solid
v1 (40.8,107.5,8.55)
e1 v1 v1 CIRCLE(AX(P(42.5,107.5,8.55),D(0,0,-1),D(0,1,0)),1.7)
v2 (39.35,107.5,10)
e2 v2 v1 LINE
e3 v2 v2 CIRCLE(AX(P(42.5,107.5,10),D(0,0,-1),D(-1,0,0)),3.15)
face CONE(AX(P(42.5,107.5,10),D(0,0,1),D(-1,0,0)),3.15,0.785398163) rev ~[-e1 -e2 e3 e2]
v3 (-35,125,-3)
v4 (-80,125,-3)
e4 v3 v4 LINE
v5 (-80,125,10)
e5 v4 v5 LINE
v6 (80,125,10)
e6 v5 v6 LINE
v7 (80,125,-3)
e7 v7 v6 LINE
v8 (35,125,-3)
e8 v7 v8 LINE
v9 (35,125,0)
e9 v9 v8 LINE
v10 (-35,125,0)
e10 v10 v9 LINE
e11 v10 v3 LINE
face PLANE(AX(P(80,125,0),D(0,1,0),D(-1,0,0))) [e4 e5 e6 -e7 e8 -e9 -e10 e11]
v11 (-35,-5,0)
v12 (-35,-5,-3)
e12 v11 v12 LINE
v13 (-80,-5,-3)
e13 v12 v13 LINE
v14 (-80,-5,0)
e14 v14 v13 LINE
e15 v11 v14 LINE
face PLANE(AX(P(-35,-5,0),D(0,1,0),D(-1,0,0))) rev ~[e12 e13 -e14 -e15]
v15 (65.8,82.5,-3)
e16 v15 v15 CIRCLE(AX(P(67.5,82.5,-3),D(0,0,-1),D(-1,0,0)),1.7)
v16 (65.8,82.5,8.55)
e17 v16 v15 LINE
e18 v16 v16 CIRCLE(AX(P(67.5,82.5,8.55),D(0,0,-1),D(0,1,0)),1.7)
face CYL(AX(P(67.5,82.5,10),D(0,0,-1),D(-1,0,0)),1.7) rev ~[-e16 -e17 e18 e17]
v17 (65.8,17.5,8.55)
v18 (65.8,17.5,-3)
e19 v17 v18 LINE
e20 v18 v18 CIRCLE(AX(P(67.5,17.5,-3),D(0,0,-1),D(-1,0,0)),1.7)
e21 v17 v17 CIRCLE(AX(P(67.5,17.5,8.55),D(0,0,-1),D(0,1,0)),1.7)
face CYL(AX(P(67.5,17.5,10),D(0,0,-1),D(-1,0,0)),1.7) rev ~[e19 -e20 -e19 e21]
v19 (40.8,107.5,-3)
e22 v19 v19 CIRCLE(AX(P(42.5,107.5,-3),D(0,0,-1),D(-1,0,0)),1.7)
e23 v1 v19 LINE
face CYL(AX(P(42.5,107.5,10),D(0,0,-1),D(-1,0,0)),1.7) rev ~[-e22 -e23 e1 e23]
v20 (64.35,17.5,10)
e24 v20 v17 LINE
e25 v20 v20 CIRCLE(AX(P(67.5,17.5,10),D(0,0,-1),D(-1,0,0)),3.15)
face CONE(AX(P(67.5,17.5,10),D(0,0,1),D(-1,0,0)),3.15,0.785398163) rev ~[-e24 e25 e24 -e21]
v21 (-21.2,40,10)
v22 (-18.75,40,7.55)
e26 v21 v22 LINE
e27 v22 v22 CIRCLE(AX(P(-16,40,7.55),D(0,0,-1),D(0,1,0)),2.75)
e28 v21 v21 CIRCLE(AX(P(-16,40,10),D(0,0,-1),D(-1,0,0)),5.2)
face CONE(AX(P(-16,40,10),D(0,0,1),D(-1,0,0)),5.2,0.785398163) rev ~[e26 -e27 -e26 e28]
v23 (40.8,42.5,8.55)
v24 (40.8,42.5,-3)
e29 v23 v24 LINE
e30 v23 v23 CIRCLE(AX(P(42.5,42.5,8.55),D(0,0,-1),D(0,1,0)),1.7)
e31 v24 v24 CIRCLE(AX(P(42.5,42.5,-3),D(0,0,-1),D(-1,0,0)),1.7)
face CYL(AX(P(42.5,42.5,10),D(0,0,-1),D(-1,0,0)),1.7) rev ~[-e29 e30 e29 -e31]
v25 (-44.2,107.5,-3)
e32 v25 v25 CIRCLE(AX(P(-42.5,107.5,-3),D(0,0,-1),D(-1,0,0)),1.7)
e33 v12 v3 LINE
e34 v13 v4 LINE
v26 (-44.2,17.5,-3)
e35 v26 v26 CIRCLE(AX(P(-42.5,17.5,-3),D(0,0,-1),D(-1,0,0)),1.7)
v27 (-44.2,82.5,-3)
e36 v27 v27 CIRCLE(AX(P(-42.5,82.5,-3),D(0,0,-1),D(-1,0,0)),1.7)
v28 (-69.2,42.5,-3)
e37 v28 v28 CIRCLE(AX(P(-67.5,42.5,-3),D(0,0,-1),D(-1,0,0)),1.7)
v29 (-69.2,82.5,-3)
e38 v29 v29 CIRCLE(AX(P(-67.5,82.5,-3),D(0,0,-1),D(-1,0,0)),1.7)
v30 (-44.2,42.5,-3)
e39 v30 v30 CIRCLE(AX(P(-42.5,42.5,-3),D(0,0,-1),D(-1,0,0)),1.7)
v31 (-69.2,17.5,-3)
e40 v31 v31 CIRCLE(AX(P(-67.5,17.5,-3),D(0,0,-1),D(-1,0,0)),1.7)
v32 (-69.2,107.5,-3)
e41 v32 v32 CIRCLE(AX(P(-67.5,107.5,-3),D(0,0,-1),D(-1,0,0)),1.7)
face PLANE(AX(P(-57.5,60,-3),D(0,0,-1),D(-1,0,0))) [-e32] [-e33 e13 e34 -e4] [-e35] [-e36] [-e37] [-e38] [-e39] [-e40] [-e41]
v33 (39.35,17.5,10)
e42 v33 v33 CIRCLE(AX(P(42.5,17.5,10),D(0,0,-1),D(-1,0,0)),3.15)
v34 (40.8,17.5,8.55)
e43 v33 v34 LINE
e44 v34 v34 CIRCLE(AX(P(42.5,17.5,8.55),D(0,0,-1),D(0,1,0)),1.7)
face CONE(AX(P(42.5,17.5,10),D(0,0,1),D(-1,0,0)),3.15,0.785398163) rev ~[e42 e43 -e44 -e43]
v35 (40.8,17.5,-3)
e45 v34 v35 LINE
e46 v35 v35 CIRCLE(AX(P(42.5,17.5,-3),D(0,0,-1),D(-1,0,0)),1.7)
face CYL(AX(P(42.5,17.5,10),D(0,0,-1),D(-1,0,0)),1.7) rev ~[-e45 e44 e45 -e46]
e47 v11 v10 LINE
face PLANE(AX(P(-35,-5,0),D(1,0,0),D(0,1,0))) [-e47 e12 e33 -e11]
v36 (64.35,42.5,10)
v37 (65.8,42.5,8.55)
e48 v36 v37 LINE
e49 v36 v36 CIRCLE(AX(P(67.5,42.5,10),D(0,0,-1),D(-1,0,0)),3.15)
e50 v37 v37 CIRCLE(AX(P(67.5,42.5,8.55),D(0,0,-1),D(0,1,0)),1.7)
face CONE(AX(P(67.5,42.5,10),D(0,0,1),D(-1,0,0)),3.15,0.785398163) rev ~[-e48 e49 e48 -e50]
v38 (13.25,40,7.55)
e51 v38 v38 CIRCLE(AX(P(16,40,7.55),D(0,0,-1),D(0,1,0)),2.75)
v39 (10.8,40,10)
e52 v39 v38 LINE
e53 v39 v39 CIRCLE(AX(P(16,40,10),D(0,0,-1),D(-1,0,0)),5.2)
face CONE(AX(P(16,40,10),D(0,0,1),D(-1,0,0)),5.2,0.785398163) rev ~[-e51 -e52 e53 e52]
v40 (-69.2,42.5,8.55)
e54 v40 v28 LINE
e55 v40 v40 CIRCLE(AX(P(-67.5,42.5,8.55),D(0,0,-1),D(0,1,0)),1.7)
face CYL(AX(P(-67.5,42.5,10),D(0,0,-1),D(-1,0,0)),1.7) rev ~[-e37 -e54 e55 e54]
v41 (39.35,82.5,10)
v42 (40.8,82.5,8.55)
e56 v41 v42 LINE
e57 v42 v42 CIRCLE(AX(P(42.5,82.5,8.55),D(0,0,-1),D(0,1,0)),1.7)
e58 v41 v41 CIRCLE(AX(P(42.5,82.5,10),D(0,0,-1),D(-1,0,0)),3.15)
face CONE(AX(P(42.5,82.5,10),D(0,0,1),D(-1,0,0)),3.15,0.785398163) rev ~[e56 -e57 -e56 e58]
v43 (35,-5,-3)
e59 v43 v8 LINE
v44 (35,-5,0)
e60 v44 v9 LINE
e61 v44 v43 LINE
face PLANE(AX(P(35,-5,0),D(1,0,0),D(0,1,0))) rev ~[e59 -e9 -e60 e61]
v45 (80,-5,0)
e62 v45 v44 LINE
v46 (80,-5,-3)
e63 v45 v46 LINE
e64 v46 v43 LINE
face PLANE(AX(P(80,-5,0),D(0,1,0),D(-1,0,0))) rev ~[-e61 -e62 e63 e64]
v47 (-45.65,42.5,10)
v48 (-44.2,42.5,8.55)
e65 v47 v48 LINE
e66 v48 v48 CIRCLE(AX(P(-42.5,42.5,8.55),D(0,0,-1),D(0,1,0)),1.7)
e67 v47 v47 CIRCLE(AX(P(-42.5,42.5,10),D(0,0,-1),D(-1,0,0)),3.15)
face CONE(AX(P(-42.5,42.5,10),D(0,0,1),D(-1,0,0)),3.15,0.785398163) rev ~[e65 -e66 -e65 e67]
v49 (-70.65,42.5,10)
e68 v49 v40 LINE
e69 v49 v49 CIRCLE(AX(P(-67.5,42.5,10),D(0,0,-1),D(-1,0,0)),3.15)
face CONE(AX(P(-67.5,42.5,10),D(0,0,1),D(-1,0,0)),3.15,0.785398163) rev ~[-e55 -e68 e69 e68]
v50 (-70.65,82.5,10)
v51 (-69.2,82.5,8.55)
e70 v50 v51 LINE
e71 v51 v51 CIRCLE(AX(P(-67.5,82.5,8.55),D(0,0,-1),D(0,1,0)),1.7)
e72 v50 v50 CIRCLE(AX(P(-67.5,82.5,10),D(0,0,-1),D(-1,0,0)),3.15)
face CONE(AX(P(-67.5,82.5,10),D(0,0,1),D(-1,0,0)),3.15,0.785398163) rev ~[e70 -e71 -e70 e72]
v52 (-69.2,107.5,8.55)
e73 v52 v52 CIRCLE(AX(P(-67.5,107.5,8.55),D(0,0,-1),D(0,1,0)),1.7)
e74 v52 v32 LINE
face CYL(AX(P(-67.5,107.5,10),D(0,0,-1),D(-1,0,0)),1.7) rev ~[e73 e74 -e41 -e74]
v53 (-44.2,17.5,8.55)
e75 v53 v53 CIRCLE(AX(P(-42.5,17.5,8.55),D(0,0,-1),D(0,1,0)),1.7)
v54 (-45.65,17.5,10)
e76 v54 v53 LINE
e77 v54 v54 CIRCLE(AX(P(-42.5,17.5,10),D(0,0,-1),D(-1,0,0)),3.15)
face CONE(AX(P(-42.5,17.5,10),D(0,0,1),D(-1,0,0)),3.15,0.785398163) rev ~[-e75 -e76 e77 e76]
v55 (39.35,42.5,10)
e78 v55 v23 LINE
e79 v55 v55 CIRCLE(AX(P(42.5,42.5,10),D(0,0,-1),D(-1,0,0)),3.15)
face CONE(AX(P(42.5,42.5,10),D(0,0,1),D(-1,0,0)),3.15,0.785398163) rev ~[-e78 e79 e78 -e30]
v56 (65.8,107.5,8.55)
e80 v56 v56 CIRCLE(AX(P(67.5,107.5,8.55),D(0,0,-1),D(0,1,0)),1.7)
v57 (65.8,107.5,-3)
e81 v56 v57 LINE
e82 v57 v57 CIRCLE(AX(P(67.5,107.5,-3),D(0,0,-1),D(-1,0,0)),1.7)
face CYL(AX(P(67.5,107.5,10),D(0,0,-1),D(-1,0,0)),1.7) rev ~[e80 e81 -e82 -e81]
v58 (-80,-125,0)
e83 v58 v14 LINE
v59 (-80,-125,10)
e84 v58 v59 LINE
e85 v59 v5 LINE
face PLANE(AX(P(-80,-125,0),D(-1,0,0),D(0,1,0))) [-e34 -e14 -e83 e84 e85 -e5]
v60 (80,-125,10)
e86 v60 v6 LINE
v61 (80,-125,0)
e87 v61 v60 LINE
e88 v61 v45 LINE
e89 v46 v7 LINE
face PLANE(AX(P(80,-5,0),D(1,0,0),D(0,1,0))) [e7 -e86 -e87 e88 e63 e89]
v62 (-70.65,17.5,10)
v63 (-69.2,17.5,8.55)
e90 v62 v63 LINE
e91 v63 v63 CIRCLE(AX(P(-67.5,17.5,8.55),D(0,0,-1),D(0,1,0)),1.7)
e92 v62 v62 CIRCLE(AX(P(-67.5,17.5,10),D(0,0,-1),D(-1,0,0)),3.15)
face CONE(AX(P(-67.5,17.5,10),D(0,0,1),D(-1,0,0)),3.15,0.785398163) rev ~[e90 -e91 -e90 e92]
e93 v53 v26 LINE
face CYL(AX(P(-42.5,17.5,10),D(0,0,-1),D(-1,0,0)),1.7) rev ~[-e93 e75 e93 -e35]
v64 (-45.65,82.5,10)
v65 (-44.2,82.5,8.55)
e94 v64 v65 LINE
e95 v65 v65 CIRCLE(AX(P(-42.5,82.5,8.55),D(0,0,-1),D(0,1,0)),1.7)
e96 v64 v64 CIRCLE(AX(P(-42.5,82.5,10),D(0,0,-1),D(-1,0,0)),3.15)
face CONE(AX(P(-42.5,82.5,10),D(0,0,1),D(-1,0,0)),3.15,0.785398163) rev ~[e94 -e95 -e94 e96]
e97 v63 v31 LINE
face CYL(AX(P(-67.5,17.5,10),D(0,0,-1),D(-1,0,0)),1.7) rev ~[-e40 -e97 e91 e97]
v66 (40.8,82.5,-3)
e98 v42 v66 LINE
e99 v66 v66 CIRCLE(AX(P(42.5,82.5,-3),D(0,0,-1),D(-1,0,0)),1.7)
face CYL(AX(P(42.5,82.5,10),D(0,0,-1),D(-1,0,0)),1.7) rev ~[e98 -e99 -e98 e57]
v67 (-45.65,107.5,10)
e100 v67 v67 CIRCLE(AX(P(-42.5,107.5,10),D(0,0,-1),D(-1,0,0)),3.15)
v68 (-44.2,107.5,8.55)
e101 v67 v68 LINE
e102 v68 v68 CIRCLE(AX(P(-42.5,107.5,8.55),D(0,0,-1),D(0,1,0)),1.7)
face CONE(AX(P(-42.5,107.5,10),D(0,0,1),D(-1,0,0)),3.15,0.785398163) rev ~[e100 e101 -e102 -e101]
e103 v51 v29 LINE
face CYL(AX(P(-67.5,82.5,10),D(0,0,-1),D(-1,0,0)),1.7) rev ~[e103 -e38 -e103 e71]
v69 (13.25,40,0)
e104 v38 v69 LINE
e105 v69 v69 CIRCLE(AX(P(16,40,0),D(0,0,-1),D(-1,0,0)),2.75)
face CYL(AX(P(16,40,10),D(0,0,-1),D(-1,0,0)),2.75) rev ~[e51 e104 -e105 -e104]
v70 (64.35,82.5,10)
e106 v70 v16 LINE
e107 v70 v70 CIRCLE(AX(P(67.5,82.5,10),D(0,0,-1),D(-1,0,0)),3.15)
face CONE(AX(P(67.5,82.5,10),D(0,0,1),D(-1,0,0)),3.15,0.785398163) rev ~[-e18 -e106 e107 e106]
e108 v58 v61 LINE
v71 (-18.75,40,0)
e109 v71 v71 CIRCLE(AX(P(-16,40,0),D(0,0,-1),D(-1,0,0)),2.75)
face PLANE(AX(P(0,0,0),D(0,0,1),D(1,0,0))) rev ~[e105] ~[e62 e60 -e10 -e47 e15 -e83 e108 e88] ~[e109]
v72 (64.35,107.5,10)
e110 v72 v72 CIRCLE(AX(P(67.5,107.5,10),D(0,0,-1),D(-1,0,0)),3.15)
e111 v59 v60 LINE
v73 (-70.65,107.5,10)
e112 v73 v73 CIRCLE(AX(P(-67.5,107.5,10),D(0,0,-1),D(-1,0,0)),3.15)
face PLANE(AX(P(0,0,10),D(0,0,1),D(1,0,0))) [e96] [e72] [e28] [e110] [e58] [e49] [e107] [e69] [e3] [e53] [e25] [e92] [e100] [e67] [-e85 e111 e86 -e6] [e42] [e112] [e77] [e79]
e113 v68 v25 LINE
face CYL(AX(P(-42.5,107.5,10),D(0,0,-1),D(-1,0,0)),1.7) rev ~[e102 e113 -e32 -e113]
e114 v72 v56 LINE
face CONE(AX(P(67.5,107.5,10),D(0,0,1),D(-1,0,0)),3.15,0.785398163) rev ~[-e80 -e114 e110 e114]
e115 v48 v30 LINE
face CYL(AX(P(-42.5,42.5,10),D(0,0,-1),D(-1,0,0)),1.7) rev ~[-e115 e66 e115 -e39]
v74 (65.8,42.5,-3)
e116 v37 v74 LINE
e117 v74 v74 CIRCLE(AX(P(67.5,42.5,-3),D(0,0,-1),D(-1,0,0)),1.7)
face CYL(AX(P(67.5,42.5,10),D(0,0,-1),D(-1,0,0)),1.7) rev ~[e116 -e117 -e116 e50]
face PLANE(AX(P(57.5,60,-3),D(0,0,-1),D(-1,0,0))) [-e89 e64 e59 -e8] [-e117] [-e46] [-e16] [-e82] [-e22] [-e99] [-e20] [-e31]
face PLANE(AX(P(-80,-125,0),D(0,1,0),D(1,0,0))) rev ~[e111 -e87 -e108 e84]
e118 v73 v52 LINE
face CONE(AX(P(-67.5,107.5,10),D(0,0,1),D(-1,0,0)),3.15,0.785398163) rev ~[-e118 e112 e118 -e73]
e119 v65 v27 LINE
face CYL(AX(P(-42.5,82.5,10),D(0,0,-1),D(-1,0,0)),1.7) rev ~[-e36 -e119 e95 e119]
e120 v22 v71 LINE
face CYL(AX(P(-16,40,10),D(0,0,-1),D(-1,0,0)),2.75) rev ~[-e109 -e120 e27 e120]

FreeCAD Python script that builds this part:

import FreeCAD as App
import Part
import Sketcher


def add_polygon(sketch, points):
    """Adds a closed chain of lines whose ends are joined by coincident constraints."""
    first, n = sketch.GeometryCount, len(points)
    for a, b in zip(points, points[1:] + points[:1]):
        sketch.addGeometry(Part.LineSegment(App.Vector(*a, 0), App.Vector(*b, 0)), False)
    for i in range(n):
        sketch.addConstraint(Sketcher.Constraint("Coincident", first + i, 2, first + (i + 1) % n, 1))

doc = App.newDocument("Part")
body = doc.addObject("PartDesign::Body", "Body")

# Sketch on XY plane
sketch1 = body.newObject("Sketcher::SketchObject", "Sketch")
sketch1.AttachmentSupport = (doc.getObject("XY_Plane"), [""])
sketch1.MapMode = "FlatFace"
add_polygon(sketch1, [(-80, 125), (-80, -125), (80, -125), (80, 125)])  # lines 0-3
sketch1.addConstraint(Sketcher.Constraint("Vertical", 0))
sketch1.addConstraint(Sketcher.Constraint("Horizontal", 1))
sketch1.addConstraint(Sketcher.Constraint("Vertical", 2))
sketch1.addConstraint(Sketcher.Constraint("Horizontal", 3))
sketch1.addConstraint(Sketcher.Constraint("Symmetric", 0, 2, 2, 2, -1, 1))
sketch1.addConstraint(Sketcher.Constraint("DistanceX", 1, 1, 1, 2, 160.0))
sketch1.addConstraint(Sketcher.Constraint("DistanceY", 0, 2, 0, 1, 250.0))
pad1 = body.newObject("PartDesign::Pad", "Pad")
pad1.Profile = sketch1
pad1.Length = 10

# Sketch on XY plane
sketch2 = body.newObject("Sketcher::SketchObject", "Sketch001")
sketch2.AttachmentSupport = (doc.getObject("XY_Plane"), [""])
sketch2.MapMode = "FlatFace"
add_polygon(sketch2, [(80, 125), (80, -5), (35, -5), (35, 125)])  # lines 0-3
add_polygon(sketch2, [(-35, 125), (-35, -5), (-80, -5), (-80, 125)])  # lines 4-7
sketch2.addConstraint(Sketcher.Constraint("Vertical", 0))
sketch2.addConstraint(Sketcher.Constraint("Horizontal", 1))
sketch2.addConstraint(Sketcher.Constraint("Vertical", 2))
sketch2.addConstraint(Sketcher.Constraint("Horizontal", 3))
sketch2.addConstraint(Sketcher.Constraint("Vertical", 4))
sketch2.addConstraint(Sketcher.Constraint("Horizontal", 5))
sketch2.addConstraint(Sketcher.Constraint("Vertical", 6))
sketch2.addConstraint(Sketcher.Constraint("Horizontal", 7))
sketch2.addConstraint(Sketcher.Constraint("Symmetric", 1, 2, 4, 2, -2))
sketch2.addConstraint(Sketcher.Constraint("Symmetric", 3, 2, 6, 2, -2))
sketch2.addConstraint(Sketcher.Constraint("DistanceX", 1, 2, 1, 1, 45.0))
sketch2.addConstraint(Sketcher.Constraint("DistanceY", 0, 2, 0, 1, 130.0))
sketch2.addConstraint(Sketcher.Constraint("DistanceX", -1, 1, 0, 2, 80.0))
sketch2.addConstraint(Sketcher.Constraint("DistanceY", 0, 2, -1, 1, 5.0))
pad2 = body.newObject("PartDesign::Pad", "Pad001")
pad2.Profile = sketch2
pad2.Length = 3
pad2.Reversed = True

# Sketch on XY plane
sketch3 = body.newObject("Sketcher::SketchObject", "Sketch002")
sketch3.AttachmentSupport = (doc.getObject("XY_Plane"), [""])
sketch3.MapMode = "FlatFace"
sketch3.AttachmentOffset = App.Placement(App.Vector(0, 0, 10), App.Rotation())
sketch3.addGeometry(Part.Circle(App.Vector(-67.5, 107.5, 0), App.Vector(0, 0, 1), 1.7), False)
sketch3.addGeometry(Part.Circle(App.Vector(-42.5, 107.5, 0), App.Vector(0, 0, 1), 1.7), False)
sketch3.addGeometry(Part.Circle(App.Vector(-42.5, 82.5, 0), App.Vector(0, 0, 1), 1.7), False)
sketch3.addGeometry(Part.Circle(App.Vector(-67.5, 82.5, 0), App.Vector(0, 0, 1), 1.7), False)
sketch3.addGeometry(Part.Circle(App.Vector(42.5, 107.5, 0), App.Vector(0, 0, 1), 1.7), False)
sketch3.addGeometry(Part.Circle(App.Vector(67.5, 107.5, 0), App.Vector(0, 0, 1), 1.7), False)
sketch3.addGeometry(Part.Circle(App.Vector(67.5, 82.5, 0), App.Vector(0, 0, 1), 1.7), False)
sketch3.addGeometry(Part.Circle(App.Vector(42.5, 82.5, 0), App.Vector(0, 0, 1), 1.7), False)
sketch3.addGeometry(Part.Circle(App.Vector(-67.5, 42.5, 0), App.Vector(0, 0, 1), 1.7), False)
sketch3.addGeometry(Part.Circle(App.Vector(-42.5, 42.5, 0), App.Vector(0, 0, 1), 1.7), False)
sketch3.addGeometry(Part.Circle(App.Vector(-42.5, 17.5, 0), App.Vector(0, 0, 1), 1.7), False)
sketch3.addGeometry(Part.Circle(App.Vector(-67.5, 17.5, 0), App.Vector(0, 0, 1), 1.7), False)
sketch3.addGeometry(Part.Circle(App.Vector(42.5, 42.5, 0), App.Vector(0, 0, 1), 1.7), False)
sketch3.addGeometry(Part.Circle(App.Vector(67.5, 42.5, 0), App.Vector(0, 0, 1), 1.7), False)
sketch3.addGeometry(Part.Circle(App.Vector(67.5, 17.5, 0), App.Vector(0, 0, 1), 1.7), False)
sketch3.addGeometry(Part.Circle(App.Vector(42.5, 17.5, 0), App.Vector(0, 0, 1), 1.7), False)
sketch3.addConstraint(Sketcher.Constraint("Equal", 0, 1))
sketch3.addConstraint(Sketcher.Constraint("Equal", 1, 2))
sketch3.addConstraint(Sketcher.Constraint("Equal", 2, 3))
sketch3.addConstraint(Sketcher.Constraint("Equal", 3, 4))
sketch3.addConstraint(Sketcher.Constraint("Equal", 4, 5))
sketch3.addConstraint(Sketcher.Constraint("Equal", 5, 6))
sketch3.addConstraint(Sketcher.Constraint("Equal", 6, 7))
sketch3.addConstraint(Sketcher.Constraint("Equal", 7, 8))
sketch3.addConstraint(Sketcher.Constraint("Equal", 8, 9))
sketch3.addConstraint(Sketcher.Constraint("Equal", 9, 10))
sketch3.addConstraint(Sketcher.Constraint("Equal", 10, 11))
sketch3.addConstraint(Sketcher.Constraint("Equal", 11, 12))
sketch3.addConstraint(Sketcher.Constraint("Equal", 12, 13))
sketch3.addConstraint(Sketcher.Constraint("Equal", 13, 14))
sketch3.addConstraint(Sketcher.Constraint("Equal", 14, 15))
sketch3.addConstraint(Sketcher.Constraint("Symmetric", 1, 3, 4, 3, -2))
sketch3.addConstraint(Sketcher.Constraint("Symmetric", 0, 3, 5, 3, -2))
sketch3.addConstraint(Sketcher.Constraint("Symmetric", 3, 3, 6, 3, -2))
sketch3.addConstraint(Sketcher.Constraint("Symmetric", 2, 3, 7, 3, -2))
sketch3.addConstraint(Sketcher.Constraint("Symmetric", 9, 3, 12, 3, -2))
sketch3.addConstraint(Sketcher.Constraint("Symmetric", 8, 3, 13, 3, -2))
sketch3.addConstraint(Sketcher.Constraint("Symmetric", 11, 3, 14, 3, -2))
sketch3.addConstraint(Sketcher.Constraint("Symmetric", 10, 3, 15, 3, -2))
sketch3.addConstraint(Sketcher.Constraint("Horizontal", 0, 3, 1, 3))
sketch3.addConstraint(Sketcher.Constraint("Horizontal", 2, 3, 3, 3))
sketch3.addConstraint(Sketcher.Constraint("Horizontal", 8, 3, 9, 3))
sketch3.addConstraint(Sketcher.Constraint("Horizontal", 10, 3, 11, 3))
sketch3.addConstraint(Sketcher.Constraint("Vertical", 1, 3, 2, 3))
sketch3.addConstraint(Sketcher.Constraint("Vertical", 0, 3, 3, 3))
sketch3.addConstraint(Sketcher.Constraint("Vertical", 3, 3, 8, 3))
sketch3.addConstraint(Sketcher.Constraint("Vertical", 2, 3, 9, 3))
sketch3.addConstraint(Sketcher.Constraint("Vertical", 9, 3, 10, 3))
sketch3.addConstraint(Sketcher.Constraint("Vertical", 8, 3, 11, 3))
sketch3.addConstraint(Sketcher.Constraint("Diameter", 0, 3.4))
sketch3.addConstraint(Sketcher.Constraint("DistanceX", 0, 3, 1, 3, 25.0))
sketch3.addConstraint(Sketcher.Constraint("DistanceY", 2, 3, 1, 3, 25.0))
sketch3.addConstraint(Sketcher.Constraint("DistanceX", 1, 3, 4, 3, 85.0))
sketch3.addConstraint(Sketcher.Constraint("DistanceY", 8, 3, 3, 3, 40.0))
sketch3.addConstraint(Sketcher.Constraint("DistanceY", 10, 3, 9, 3, 25.0))
sketch3.addConstraint(Sketcher.Constraint("DistanceY", -1, 1, 0, 3, 107.5))
doc.recompute()
hole = body.newObject("PartDesign::Hole", "Hole")
hole.Profile = sketch3
hole.ThreadType = "None"
hole.Diameter = 3.4
hole.DepthType = "ThroughAll"
hole.HoleCutType = "Countersink"
hole.HoleCutDiameter = 6.3
hole.HoleCutCountersinkAngle = 90

# Sketch on XY plane
sketch4 = body.newObject("Sketcher::SketchObject", "Sketch003")
sketch4.AttachmentSupport = (doc.getObject("XY_Plane"), [""])
sketch4.MapMode = "FlatFace"
sketch4.AttachmentOffset = App.Placement(App.Vector(0, 0, 10), App.Rotation())
sketch4.addGeometry(Part.Circle(App.Vector(-16, 40, 0), App.Vector(0, 0, 1), 2.8), False)
sketch4.addGeometry(Part.Circle(App.Vector(16, 40, 0), App.Vector(0, 0, 1), 2.8), False)
sketch4.addConstraint(Sketcher.Constraint("Equal", 0, 1))
sketch4.addConstraint(Sketcher.Constraint("Symmetric", 0, 3, 1, 3, -2))
sketch4.addConstraint(Sketcher.Constraint("Diameter", 0, 5.5))
sketch4.addConstraint(Sketcher.Constraint("DistanceX", 0, 3, -1, 1, 16.0))
sketch4.addConstraint(Sketcher.Constraint("DistanceY", -1, 1, 0, 3, 40.0))
doc.recompute()
hole2 = body.newObject("PartDesign::Hole", "Hole001")
hole2.Profile = sketch4
hole2.ThreadType = "None"
hole2.Diameter = 5.5
hole2.DepthType = "ThroughAll"
hole2.HoleCutType = "Countersink"
hole2.HoleCutDiameter = 10.4
hole2.HoleCutCountersinkAngle = 90

doc.recompute()
